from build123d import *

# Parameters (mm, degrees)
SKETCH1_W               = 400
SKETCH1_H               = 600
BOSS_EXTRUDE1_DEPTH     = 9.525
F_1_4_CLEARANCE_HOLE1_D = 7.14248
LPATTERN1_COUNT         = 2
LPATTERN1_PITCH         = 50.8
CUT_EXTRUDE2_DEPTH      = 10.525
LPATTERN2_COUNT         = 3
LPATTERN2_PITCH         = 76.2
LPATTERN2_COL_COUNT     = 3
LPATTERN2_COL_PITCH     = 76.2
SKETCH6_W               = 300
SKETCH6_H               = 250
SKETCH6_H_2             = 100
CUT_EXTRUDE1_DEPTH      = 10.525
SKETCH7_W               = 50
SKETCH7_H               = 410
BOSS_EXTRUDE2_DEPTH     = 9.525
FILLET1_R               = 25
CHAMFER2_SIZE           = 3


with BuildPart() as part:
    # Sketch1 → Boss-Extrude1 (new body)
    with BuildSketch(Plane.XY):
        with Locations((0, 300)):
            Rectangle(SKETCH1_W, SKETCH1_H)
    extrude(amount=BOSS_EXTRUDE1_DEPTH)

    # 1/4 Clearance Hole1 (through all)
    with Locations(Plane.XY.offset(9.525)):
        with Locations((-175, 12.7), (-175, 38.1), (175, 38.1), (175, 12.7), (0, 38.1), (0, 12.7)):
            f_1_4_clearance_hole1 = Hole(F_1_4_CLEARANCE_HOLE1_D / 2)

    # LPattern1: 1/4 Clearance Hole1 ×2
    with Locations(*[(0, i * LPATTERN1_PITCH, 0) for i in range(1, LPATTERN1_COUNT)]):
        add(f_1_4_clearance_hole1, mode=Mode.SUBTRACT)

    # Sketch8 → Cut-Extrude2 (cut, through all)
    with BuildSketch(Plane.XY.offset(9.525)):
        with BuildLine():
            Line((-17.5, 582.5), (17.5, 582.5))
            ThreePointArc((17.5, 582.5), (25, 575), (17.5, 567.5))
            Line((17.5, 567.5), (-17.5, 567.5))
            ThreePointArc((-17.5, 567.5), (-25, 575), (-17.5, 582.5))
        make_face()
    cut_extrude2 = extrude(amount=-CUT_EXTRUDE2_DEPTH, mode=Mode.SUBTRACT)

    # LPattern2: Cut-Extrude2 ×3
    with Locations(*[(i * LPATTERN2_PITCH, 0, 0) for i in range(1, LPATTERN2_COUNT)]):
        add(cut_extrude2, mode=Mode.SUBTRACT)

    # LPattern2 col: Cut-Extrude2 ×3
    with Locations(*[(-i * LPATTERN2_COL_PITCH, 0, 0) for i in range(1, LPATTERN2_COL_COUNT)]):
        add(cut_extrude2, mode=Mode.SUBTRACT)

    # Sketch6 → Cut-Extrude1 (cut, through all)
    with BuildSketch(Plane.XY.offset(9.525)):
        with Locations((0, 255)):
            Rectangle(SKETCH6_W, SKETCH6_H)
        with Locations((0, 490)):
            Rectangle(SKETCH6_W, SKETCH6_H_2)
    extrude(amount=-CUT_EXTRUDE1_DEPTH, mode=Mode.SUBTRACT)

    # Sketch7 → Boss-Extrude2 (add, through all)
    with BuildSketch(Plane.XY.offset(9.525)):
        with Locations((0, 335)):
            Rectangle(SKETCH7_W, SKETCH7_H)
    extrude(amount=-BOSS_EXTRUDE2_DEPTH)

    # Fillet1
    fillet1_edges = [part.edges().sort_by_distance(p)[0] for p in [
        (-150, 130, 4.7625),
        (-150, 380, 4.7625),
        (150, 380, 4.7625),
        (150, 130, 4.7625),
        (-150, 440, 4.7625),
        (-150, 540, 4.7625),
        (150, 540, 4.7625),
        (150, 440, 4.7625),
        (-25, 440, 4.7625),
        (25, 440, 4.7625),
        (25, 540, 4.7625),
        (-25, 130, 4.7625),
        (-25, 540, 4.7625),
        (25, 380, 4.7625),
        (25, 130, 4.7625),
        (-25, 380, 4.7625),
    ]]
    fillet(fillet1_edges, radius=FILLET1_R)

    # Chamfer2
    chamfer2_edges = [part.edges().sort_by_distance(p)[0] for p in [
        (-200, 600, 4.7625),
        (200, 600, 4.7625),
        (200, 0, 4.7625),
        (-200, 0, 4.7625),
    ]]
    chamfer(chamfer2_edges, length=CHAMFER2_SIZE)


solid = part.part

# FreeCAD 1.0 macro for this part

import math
import FreeCAD as App
import Part
import Sketcher

V = App.Vector


def edges_at(feature, points):
    """Names of the edges that pass closest to the given points."""
    edges = feature.Shape.Edges
    near = lambda p: min(range(len(edges)), key=lambda i: edges[i].distToShape(Part.Vertex(*p))[0])
    return sorted({f"Edge{near(p) + 1}" for p in points})


def add_polygon(sketch, points):
    """Adds a closed chain of lines whose ends are joined by coincident constraints."""
    first, n = sketch.GeometryCount, len(points)
    for a, b in zip(points, points[1:] + points[:1]):
        sketch.addGeometry(Part.LineSegment(App.Vector(*a, 0), App.Vector(*b, 0)), False)
    for i in range(n):
        sketch.addConstraint(Sketcher.Constraint("Coincident", first + i, 2, first + (i + 1) % n, 1))

doc = App.newDocument("Part")
body = doc.addObject("PartDesign::Body", "Body")

# Sketch on XY plane
sketch1 = doc.addObject("Sketcher::SketchObject", "Sketch")
body.addObject(sketch1)
sketch1.AttachmentSupport = (doc.XY_Plane, [""])
sketch1.MapMode = "FlatFace"
add_polygon(sketch1, [(-200, 600), (-200, 0), (200, 0), (200, 600)])  # lines 0-3
sketch1.addConstraint([
    Sketcher.Constraint("Vertical", 0),
    Sketcher.Constraint("Horizontal", 1),
    Sketcher.Constraint("Vertical", 2),
    Sketcher.Constraint("Horizontal", 3),
    Sketcher.Constraint("Symmetric", 0, 2, 1, 2, -1, 1),
    Sketcher.Constraint("DistanceX", 1, 1, 1, 2, 400.0),
    Sketcher.Constraint("DistanceY", 0, 2, 0, 1, 600.0),
])
pad1 = doc.addObject("PartDesign::Pad", "Pad")
body.addObject(pad1)
pad1.Profile = sketch1
pad1.Length = 9.525

# Sketch on XY plane
sketch2 = doc.addObject("Sketcher::SketchObject", "Sketch001")
body.addObject(sketch2)
sketch2.AttachmentSupport = (doc.XY_Plane, [""])
sketch2.MapMode = "FlatFace"
sketch2.AttachmentOffset = App.Placement(V(0, 0, 9.525), App.Rotation())
sketch2.addGeometry([
    Part.Circle(V(-175, 12.7, 0), V(0, 0, 1), 3.6),  # 0
    Part.Circle(V(-175, 38.1, 0), V(0, 0, 1), 3.6),  # 1
    Part.Circle(V(175, 38.1, 0), V(0, 0, 1), 3.6),  # 2
    Part.Circle(V(175, 12.7, 0), V(0, 0, 1), 3.6),  # 3
    Part.Circle(V(0, 38.1, 0), V(0, 0, 1), 3.6),  # 4
    Part.Circle(V(0, 12.7, 0), V(0, 0, 1), 3.6),  # 5
], False)
sketch2.addConstraint([
    Sketcher.Constraint("Equal", 0, 1),
    Sketcher.Constraint("Equal", 1, 2),
    Sketcher.Constraint("Equal", 2, 3),
    Sketcher.Constraint("Equal", 3, 4),
    Sketcher.Constraint("Equal", 4, 5),
    Sketcher.Constraint("Symmetric", 1, 3, 2, 3, -2),
    Sketcher.Constraint("Symmetric", 0, 3, 3, 3, -2),
    Sketcher.Constraint("PointOnObject", 4, 3, -2),
    Sketcher.Constraint("PointOnObject", 5, 3, -2),
    Sketcher.Constraint("Horizontal", 2, 3, 4, 3),
    Sketcher.Constraint("Horizontal", 3, 3, 5, 3),
    Sketcher.Constraint("Vertical", 0, 3, 1, 3),
    Sketcher.Constraint("DistanceX", 0, 3, -1, 1, 175.0),
    Sketcher.Constraint("DistanceY", -1, 1, 0, 3, 12.7),
    Sketcher.Constraint("DistanceY", -1, 1, 1, 3, 38.1),
    Sketcher.Constraint("Diameter", 0, 7.14248),
])
doc.recompute()
hole = doc.addObject("PartDesign::Hole", "Hole")
body.addObject(hole)
hole.Profile = sketch2
hole.ThreadType = "None"
hole.Diameter = 7.14248
hole.DepthType = "ThroughAll"
doc.recompute()

linearpattern = doc.addObject("PartDesign::LinearPattern", "LinearPattern")
body.addObject(linearpattern)
linearpattern.Originals = [hole]
linearpattern.Direction = (doc.Y_Axis, [""])
linearpattern.Mode = "offset"
linearpattern.Offset = 50.8
linearpattern.Occurrences = 2
body.Tip = linearpattern

# Sketch on XY plane
sketch3 = doc.addObject("Sketcher::SketchObject", "Sketch002")
body.addObject(sketch3)
sketch3.AttachmentSupport = (doc.XY_Plane, [""])
sketch3.MapMode = "FlatFace"
sketch3.AttachmentOffset = App.Placement(V(0, 0, 9.525), App.Rotation())
sketch3.addGeometry([
    Part.LineSegment(V(18, 582, 0), V(-18, 582, 0)),
    Part.ArcOfCircle(Part.Circle(V(-18, 575, 0), V(0, 0, 1), 8), math.radians(90), math.radians(270)),
    Part.LineSegment(V(-18, 568, 0), V(18, 568, 0)),
    Part.ArcOfCircle(Part.Circle(V(18, 575, 0), V(0, 0, 1), 8), math.radians(-90), math.radians(90)),
], False)
sketch3.addConstraint([
    Sketcher.Constraint("Tangent", 0, 2, 1, 1),
    Sketcher.Constraint("Tangent", 1, 2, 2, 1),
    Sketcher.Constraint("Tangent", 2, 2, 3, 1),
    Sketcher.Constraint("Tangent", 3, 2, 0, 1),
    Sketcher.Constraint("Horizontal", 0),
    Sketcher.Constraint("Horizontal", 2),
    Sketcher.Constraint("Radius", 1, 7.5),
    Sketcher.Constraint("DistanceX", 0, 2, 0, 1, 35.0),
    Sketcher.Constraint("DistanceY", -1, 1, 1, 3, 575.0),
    Sketcher.Constraint("DistanceX", 1, 3, -1, 1, 17.5),
])
pocket1 = doc.addObject("PartDesign::Pocket", "Pocket")
body.addObject(pocket1)
pocket1.Profile = sketch3
pocket1.Type = "ThroughAll"
doc.recompute()

linearpattern2 = doc.addObject("PartDesign::LinearPattern", "LinearPattern001")
body.addObject(linearpattern2)
linearpattern2.Originals = [pocket1]
linearpattern2.Direction = (doc.X_Axis, [""])
linearpattern2.Mode = "offset"
linearpattern2.Offset = 76.2
linearpattern2.Occurrences = 3
body.Tip = linearpattern2
doc.recompute()

linearpattern3 = doc.addObject("PartDesign::LinearPattern", "LinearPattern002")
body.addObject(linearpattern3)
linearpattern3.Originals = [pocket1]
linearpattern3.Direction = (doc.X_Axis, [""])
linearpattern3.Mode = "offset"
linearpattern3.Offset = 76.2
linearpattern3.Occurrences = 3
linearpattern3.Reversed = True
body.Tip = linearpattern3

# Sketch on XY plane
sketch4 = doc.addObject("Sketcher::SketchObject", "Sketch003")
body.addObject(sketch4)
sketch4.AttachmentSupport = (doc.XY_Plane, [""])
sketch4.MapMode = "FlatFace"
sketch4.AttachmentOffset = App.Placement(V(0, 0, 9.525), App.Rotation())
add_polygon(sketch4, [(-150, 380), (-150, 130), (150, 130), (150, 380)])  # lines 0-3
add_polygon(sketch4, [(-150, 540), (-150, 440), (150, 440), (150, 540)])  # lines 4-7
sketch4.addConstraint([
    Sketcher.Constraint("Vertical", 0),
    Sketcher.Constraint("Horizontal", 1),
    Sketcher.Constraint("Vertical", 2),
    Sketcher.Constraint("Horizontal", 3),
    Sketcher.Constraint("Vertical", 4),
    Sketcher.Constraint("Horizontal", 5),
    Sketcher.Constraint("Vertical", 6),
    Sketcher.Constraint("Horizontal", 7),
    Sketcher.Constraint("Vertical", 3, 2, 4, 2),
    Sketcher.Constraint("Vertical", 2, 2, 5, 2),
    Sketcher.Constraint("DistanceX", 1, 1, 1, 2, 300.0),
    Sketcher.Constraint("DistanceY", 0, 2, 0, 1, 250.0),
    Sketcher.Constraint("DistanceY", 4, 2, 4, 1, 100.0),
    Sketcher.Constraint("DistanceX", 0, 2, -1, 1, 150.0),
    Sketcher.Constraint("DistanceY", -1, 1, 0, 2, 130.0),
    Sketcher.Constraint("DistanceY", -1, 1, 4, 2, 440.0),
])
pocket2 = doc.addObject("PartDesign::Pocket", "Pocket001")
body.addObject(pocket2)
pocket2.Profile = sketch4
pocket2.Type = "ThroughAll"

# Sketch on XY plane
sketch5 = doc.addObject("Sketcher::SketchObject", "Sketch004")
body.addObject(sketch5)
sketch5.AttachmentSupport = (doc.XY_Plane, [""])
sketch5.MapMode = "FlatFace"
sketch5.AttachmentOffset = App.Placement(V(0, 0, 9.525), App.Rotation())
add_polygon(sketch5, [(-25, 540), (-25, 130), (25, 130), (25, 540)])  # lines 0-3
sketch5.addConstraint([
    Sketcher.Constraint("Vertical", 0),
    Sketcher.Constraint("Horizontal", 1),
    Sketcher.Constraint("Vertical", 2),
    Sketcher.Constraint("Horizontal", 3),
    Sketcher.Constraint("DistanceX", 1, 1, 1, 2, 50.0),
    Sketcher.Constraint("DistanceY", 0, 2, 0, 1, 410.0),
    Sketcher.Constraint("DistanceX", 0, 2, -1, 1, 25.0),
    Sketcher.Constraint("DistanceY", -1, 1, 0, 2, 130.0),
])
pad2 = doc.addObject("PartDesign::Pad", "Pad001")
body.addObject(pad2)
pad2.Profile = sketch5
pad2.Length = 9.525
pad2.Reversed = True
doc.recompute()

fillet = doc.addObject("PartDesign::Fillet", "Fillet")
body.addObject(fillet)
fillet.Base = (pad2, edges_at(pad2, [
    (-150, 130, 4.763),
    (-150, 380, 4.763),
    (150, 380, 4.763),
    (150, 130, 4.763),
    (-150, 440, 4.763),
    (-150, 540, 4.763),
    (150, 540, 4.763),
    (150, 440, 4.763),
    (-25, 440, 4.763),
    (25, 440, 4.763),
    (25, 540, 4.763),
    (-25, 130, 4.763),
    (-25, 540, 4.763),
    (25, 380, 4.763),
    (25, 130, 4.763),
    (-25, 380, 4.763),
]))
fillet.Radius = 25
doc.recompute()

chamfer = doc.addObject("PartDesign::Chamfer", "Chamfer")
body.addObject(chamfer)
chamfer.Base = (fillet, edges_at(fillet, [
    (-200, 600, 4.763),
    (200, 600, 4.763),
    (200, 0, 4.763),
    (-200, 0, 4.763),
]))
chamfer.Size = 3

doc.recompute()
